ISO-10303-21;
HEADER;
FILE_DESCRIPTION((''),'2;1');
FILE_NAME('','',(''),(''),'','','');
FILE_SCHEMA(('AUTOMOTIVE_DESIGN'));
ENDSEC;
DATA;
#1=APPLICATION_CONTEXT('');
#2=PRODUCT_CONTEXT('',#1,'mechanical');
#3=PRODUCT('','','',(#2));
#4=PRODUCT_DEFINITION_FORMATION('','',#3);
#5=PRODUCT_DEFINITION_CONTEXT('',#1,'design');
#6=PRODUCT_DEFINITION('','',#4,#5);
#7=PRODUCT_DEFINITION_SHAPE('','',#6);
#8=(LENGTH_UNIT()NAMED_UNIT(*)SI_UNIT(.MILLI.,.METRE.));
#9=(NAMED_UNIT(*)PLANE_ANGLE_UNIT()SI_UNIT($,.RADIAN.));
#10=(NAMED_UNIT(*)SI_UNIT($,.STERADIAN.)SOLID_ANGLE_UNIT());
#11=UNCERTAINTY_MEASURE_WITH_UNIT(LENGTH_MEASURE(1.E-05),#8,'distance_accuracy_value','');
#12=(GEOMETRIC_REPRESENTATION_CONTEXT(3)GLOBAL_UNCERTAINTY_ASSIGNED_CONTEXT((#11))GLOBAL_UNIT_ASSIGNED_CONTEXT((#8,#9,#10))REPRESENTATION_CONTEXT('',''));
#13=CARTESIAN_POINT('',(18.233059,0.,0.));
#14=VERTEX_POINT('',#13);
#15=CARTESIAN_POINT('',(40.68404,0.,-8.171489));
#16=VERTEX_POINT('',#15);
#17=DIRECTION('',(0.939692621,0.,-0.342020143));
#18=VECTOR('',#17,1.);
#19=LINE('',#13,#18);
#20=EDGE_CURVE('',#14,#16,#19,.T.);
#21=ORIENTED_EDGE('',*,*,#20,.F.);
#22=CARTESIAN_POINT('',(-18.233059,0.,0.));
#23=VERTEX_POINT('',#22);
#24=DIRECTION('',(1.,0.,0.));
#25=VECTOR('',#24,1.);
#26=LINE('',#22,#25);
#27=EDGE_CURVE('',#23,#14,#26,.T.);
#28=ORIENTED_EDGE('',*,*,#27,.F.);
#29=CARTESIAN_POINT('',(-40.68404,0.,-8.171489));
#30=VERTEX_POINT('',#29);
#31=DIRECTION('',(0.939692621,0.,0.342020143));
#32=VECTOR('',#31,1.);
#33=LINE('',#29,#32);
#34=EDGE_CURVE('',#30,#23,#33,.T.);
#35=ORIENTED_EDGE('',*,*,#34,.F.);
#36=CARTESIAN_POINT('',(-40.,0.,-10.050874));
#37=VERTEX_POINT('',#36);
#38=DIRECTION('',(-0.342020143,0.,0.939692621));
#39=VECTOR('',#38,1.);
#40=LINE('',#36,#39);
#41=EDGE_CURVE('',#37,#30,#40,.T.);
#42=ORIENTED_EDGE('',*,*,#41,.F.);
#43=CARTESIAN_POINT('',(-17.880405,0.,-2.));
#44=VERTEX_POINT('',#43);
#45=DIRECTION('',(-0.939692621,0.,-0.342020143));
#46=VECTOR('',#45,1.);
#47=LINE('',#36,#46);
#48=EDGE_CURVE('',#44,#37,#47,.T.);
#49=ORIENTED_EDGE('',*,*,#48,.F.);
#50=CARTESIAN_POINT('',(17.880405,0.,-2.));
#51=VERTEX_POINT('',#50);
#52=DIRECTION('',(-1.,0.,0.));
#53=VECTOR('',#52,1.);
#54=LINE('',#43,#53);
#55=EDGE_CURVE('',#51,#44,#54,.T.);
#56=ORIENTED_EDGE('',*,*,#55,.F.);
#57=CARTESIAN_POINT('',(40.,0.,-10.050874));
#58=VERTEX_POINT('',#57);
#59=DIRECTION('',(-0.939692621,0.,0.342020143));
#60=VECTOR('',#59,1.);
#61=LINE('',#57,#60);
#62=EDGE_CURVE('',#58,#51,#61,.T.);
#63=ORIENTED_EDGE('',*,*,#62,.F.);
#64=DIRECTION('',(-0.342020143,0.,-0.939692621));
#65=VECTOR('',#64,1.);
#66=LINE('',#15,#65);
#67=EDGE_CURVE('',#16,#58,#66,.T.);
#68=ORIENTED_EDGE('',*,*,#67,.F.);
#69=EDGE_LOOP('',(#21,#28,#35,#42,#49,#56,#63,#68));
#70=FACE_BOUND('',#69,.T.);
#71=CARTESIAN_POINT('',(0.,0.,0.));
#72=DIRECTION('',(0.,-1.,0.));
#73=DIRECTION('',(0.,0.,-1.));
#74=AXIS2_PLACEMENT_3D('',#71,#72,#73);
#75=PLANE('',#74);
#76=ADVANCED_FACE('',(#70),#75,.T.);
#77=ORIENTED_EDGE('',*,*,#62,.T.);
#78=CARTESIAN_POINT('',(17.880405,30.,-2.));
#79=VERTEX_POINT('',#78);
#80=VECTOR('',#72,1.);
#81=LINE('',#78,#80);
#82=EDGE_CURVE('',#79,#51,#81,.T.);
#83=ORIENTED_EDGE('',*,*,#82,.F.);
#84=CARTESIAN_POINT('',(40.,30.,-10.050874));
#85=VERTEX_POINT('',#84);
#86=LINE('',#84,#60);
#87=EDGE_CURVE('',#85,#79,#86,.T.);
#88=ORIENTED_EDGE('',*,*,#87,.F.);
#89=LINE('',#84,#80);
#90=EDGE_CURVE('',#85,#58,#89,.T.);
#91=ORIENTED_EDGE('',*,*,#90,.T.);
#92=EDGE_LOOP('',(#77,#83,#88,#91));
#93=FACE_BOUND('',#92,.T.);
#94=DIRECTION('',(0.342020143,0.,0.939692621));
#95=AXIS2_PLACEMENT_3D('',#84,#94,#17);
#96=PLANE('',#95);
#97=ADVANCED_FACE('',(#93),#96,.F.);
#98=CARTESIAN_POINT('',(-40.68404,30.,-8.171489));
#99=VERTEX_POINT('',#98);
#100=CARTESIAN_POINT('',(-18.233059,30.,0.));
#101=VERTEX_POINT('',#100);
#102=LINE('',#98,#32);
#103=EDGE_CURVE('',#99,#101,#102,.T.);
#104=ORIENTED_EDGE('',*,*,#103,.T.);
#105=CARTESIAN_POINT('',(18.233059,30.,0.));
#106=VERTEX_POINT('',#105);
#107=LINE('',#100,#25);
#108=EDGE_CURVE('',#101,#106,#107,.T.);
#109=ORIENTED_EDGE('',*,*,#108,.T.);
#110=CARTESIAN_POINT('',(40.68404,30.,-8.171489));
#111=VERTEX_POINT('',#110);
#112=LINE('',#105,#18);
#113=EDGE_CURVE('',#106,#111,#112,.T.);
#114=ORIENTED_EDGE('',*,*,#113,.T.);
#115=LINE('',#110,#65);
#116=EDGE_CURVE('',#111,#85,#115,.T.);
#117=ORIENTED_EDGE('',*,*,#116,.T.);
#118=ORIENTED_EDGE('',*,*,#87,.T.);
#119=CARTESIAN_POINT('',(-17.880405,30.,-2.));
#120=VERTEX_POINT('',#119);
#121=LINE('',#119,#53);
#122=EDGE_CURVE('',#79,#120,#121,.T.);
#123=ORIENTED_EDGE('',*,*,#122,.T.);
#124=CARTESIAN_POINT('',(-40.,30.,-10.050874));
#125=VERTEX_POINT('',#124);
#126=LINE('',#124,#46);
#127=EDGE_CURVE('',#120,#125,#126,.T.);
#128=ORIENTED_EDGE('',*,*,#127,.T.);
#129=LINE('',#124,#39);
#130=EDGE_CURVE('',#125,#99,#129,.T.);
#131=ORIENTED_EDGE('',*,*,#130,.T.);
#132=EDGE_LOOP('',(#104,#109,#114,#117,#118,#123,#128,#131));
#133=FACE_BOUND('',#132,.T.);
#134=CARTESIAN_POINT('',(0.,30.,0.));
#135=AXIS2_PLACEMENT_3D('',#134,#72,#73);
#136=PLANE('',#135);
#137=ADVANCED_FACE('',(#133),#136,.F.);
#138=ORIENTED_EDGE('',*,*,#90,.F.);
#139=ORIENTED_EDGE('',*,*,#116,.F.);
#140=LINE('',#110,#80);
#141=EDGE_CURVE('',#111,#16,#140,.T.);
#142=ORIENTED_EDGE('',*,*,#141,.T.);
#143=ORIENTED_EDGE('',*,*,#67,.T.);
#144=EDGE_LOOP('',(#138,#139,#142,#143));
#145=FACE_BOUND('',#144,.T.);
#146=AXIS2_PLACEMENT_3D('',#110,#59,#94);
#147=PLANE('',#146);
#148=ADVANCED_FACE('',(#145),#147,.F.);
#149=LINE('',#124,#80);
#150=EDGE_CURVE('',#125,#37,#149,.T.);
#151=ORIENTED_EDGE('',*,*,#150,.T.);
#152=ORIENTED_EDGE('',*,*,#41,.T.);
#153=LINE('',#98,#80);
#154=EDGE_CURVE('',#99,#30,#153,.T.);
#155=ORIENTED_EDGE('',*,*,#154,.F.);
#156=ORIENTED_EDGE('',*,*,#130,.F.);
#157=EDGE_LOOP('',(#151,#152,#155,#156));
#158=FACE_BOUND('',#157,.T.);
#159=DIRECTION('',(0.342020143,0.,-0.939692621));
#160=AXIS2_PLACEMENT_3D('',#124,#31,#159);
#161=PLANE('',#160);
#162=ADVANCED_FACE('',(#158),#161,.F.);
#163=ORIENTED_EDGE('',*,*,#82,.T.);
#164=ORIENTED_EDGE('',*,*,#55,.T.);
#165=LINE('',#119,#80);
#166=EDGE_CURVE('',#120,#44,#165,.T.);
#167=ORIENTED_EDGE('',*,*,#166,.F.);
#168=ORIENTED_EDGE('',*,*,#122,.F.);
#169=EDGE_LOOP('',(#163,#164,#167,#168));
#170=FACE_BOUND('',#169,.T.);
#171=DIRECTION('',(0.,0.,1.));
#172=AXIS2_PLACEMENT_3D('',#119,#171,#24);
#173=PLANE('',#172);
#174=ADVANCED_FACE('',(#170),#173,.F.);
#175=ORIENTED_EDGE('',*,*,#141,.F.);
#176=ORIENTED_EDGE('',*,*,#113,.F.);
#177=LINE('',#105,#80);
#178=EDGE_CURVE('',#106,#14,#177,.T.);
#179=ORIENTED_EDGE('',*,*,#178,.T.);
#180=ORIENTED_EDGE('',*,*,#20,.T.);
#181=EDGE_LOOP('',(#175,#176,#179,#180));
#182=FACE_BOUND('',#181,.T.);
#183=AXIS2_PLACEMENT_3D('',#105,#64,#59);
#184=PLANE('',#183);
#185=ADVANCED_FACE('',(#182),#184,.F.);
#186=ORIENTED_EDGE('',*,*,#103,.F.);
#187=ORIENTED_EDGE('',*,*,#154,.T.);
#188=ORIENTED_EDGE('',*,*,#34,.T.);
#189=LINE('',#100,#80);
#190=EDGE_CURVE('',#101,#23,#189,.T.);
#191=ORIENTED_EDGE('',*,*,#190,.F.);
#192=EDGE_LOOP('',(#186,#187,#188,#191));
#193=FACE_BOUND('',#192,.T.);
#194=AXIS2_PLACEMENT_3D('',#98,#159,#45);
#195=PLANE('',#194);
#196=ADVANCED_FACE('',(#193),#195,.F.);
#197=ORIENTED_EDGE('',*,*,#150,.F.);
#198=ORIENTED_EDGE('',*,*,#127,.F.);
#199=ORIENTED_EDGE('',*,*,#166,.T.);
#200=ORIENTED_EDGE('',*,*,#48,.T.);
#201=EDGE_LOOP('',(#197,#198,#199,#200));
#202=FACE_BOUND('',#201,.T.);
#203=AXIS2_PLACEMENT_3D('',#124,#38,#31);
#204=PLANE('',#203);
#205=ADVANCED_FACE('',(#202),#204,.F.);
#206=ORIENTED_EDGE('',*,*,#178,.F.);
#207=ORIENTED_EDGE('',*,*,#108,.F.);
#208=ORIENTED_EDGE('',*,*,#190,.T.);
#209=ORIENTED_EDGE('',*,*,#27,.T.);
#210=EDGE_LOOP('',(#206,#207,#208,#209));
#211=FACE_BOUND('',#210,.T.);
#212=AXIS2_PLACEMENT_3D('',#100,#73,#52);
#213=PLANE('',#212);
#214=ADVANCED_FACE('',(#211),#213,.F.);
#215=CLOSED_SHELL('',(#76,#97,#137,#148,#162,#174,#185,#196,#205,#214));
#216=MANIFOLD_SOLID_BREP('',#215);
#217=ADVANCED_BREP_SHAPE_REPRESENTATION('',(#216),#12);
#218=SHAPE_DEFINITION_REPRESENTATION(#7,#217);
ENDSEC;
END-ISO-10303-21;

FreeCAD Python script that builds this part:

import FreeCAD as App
import Part
import Sketcher
from FreeCAD import Vector
Q = App.Units.Quantity


def add_polygon(sketch, points):
    """Adds a closed chain of lines whose ends are joined by coincident constraints."""
    first, n = sketch.GeometryCount, len(points)
    for a, b in zip(points, points[1:] + points[:1]):
        sketch.addGeometry(Part.LineSegment(App.Vector(*a, 0), App.Vector(*b, 0)), False)
    for i in range(n):
        sketch.addConstraint(Sketcher.Constraint("Coincident", first + i, 2, first + (i + 1) % n, 1))

doc = App.newDocument("Part")
params = doc.addObject("Spreadsheet::Sheet", "Params")
for row, (alias, value) in enumerate([
    ("sketch1_length", "2 mm"),
    ("pad1_length", "30 mm"),
], start=1):
    params.set(f"A{row}", alias)
    params.set(f"B{row}", "=" + value)
    params.setAlias(f"B{row}", alias)

body = doc.addObject("PartDesign::Body", "Body")

# Sketch on XZ plane
sketch1 = doc.addObject("Sketcher::SketchObject", "Sketch")
body.addObject(sketch1)
sketch1.AttachmentSupport = (doc.XZ_Plane, [""])
sketch1.MapMode = "FlatFace"
add_polygon(sketch1, [(-40.7, -8.2), (-18.2, 0), (18.2, 0), (40.7, -8.2), (40, -10.1), (17.9, -2), (-17.9, -2), (-40, -10.1)])  # lines 0-7
sketch1.addConstraint(Sketcher.Constraint("Horizontal", 1))
sketch1.addConstraint(Sketcher.Constraint("Horizontal", 5))
sketch1.addConstraint(Sketcher.Constraint("Symmetric", 0, 2, 1, 2, -1, 1))
sketch1.addConstraint(Sketcher.Constraint("Symmetric", 3, 2, 6, 2, -2))
sketch1.addConstraint(Sketcher.Constraint("Symmetric", 2, 2, 7, 2, -2))
sketch1.addConstraint(Sketcher.Constraint("Perpendicular", 2, 3))
sketch1.addConstraint(Sketcher.Constraint("Perpendicular", 3, 4))
sketch1.addConstraint(Sketcher.Constraint("Parallel", 0, 6))
sketch1.addConstraint(Sketcher.Constraint("Angle", 0, Q("20 deg")))
sketch1.addConstraint(Sketcher.Constraint("Distance", 3, 2.0))
sketch1.addConstraint(Sketcher.Constraint("DistanceX", -1, 1, 3, 2, 40.0))
sketch1.addConstraint(Sketcher.Constraint("DistanceY", 4, 2, -1, 1, 2.0))
sketch1.addConstraint(Sketcher.Constraint("DistanceX", 5, 2, 5, 1, 35.760809))
sketch1.setExpression("Constraints[17]", "Params.sketch1_length")
pad1 = doc.addObject("PartDesign::Pad", "Pad")
body.addObject(pad1)
pad1.Profile = sketch1
pad1.setExpression("Length", "Params.pad1_length")
pad1.Reversed = True

doc.recompute()
